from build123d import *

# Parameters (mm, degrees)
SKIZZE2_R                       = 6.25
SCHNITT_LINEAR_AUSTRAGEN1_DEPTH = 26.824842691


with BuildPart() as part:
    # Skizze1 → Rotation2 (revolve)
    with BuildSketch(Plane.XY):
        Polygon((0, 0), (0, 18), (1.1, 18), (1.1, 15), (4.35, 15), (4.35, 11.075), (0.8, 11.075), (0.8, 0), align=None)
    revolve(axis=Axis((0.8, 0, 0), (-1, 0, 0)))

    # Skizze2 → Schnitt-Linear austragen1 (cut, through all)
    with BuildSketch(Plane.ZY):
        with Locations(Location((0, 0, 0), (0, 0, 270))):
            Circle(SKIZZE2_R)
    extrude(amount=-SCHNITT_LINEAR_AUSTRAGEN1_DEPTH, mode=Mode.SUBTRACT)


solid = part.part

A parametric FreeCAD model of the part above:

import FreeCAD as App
import Part
import Sketcher

doc = App.newDocument("Part")
body = doc.addObject("PartDesign::Body", "Body")

# Sketch on XY plane
sketch1 = doc.addObject("Sketcher::SketchObject", "Sketch")
body.addObject(sketch1)
sketch1.AttachmentSupport = (doc.XY_Plane, [""])
sketch1.MapMode = "FlatFace"
sketch1.addGeometry(Part.LineSegment(App.Vector(0, 18, 0), App.Vector(0, 0, 0)), False)
sketch1.addGeometry(Part.LineSegment(App.Vector(0, 0, 0), App.Vector(0.8, 0, 0)), False)
sketch1.addGeometry(Part.LineSegment(App.Vector(0.8, 0, 0), App.Vector(0.8, 11.075, 0)), False)
sketch1.addGeometry(Part.LineSegment(App.Vector(0.8, 11.075, 0), App.Vector(4.35, 11.075, 0)), False)
sketch1.addGeometry(Part.LineSegment(App.Vector(4.35, 11.075, 0), App.Vector(4.35, 15, 0)), False)
sketch1.addGeometry(Part.LineSegment(App.Vector(4.35, 15, 0), App.Vector(1.1, 15, 0)), False)
sketch1.addGeometry(Part.LineSegment(App.Vector(1.1, 15, 0), App.Vector(1.1, 18, 0)), False)
sketch1.addGeometry(Part.LineSegment(App.Vector(1.1, 18, 0), App.Vector(0, 18, 0)), False)
sketch1.addConstraint(Sketcher.Constraint("Coincident", 0, 2, 1, 1))
sketch1.addConstraint(Sketcher.Constraint("Coincident", 1, 2, 2, 1))
sketch1.addConstraint(Sketcher.Constraint("Coincident", 2, 2, 3, 1))
sketch1.addConstraint(Sketcher.Constraint("Coincident", 3, 2, 4, 1))
sketch1.addConstraint(Sketcher.Constraint("Coincident", 4, 2, 5, 1))
sketch1.addConstraint(Sketcher.Constraint("Coincident", 5, 2, 6, 1))
sketch1.addConstraint(Sketcher.Constraint("Coincident", 6, 2, 7, 1))
sketch1.addConstraint(Sketcher.Constraint("Coincident", 7, 2, 0, 1))
sketch1.addConstraint(Sketcher.Constraint("Vertical", 0))
sketch1.addConstraint(Sketcher.Constraint("Horizontal", 1))
sketch1.addConstraint(Sketcher.Constraint("Vertical", 2))
sketch1.addConstraint(Sketcher.Constraint("Horizontal", 3))
sketch1.addConstraint(Sketcher.Constraint("Vertical", 4))
sketch1.addConstraint(Sketcher.Constraint("Horizontal", 5))
sketch1.addConstraint(Sketcher.Constraint("Vertical", 6))
sketch1.addConstraint(Sketcher.Constraint("Horizontal", 7))
sketch1.addConstraint(Sketcher.Constraint("Coincident", 0, 2, -1, 1))
sketch1.addConstraint(Sketcher.Constraint("DistanceY", 0, 2, 0, 1, 18.0))
sketch1.addConstraint(Sketcher.Constraint("DistanceY", 6, 1, 6, 2, 3.0))
sketch1.addConstraint(Sketcher.Constraint("DistanceX", 1, 1, 1, 2, 0.8))
sketch1.addConstraint(Sketcher.Constraint("DistanceX", 7, 2, 7, 1, 1.1))
sketch1.addConstraint(Sketcher.Constraint("DistanceX", 3, 1, 3, 2, 3.55))
sketch1.addConstraint(Sketcher.Constraint("DistanceY", 2, 1, 2, 2, 11.075))
revolution = doc.addObject("PartDesign::Revolution", "Revolution")
body.addObject(revolution)
revolution.Profile = sketch1
revolution.ReferenceAxis = (sketch1, ["H_Axis"])
revolution.Angle = 360

# Sketch on YZ plane
sketch2 = doc.addObject("Sketcher::SketchObject", "Sketch001")
body.addObject(sketch2)
sketch2.AttachmentSupport = (doc.YZ_Plane, [""])
sketch2.MapMode = "FlatFace"
sketch2.addGeometry(Part.Circle(App.Vector(0, 0, 0), App.Vector(0, 0, 1), 6.25), False)
sketch2.addConstraint(Sketcher.Constraint("Coincident", 0, 3, -1, 1))
sketch2.addConstraint(Sketcher.Constraint("Diameter", 0, 12.5))
pocket1 = doc.addObject("PartDesign::Pocket", "Pocket")
body.addObject(pocket1)
pocket1.Profile = sketch2
pocket1.Type = "ThroughAll"
pocket1.Reversed = True

doc.recompute()
